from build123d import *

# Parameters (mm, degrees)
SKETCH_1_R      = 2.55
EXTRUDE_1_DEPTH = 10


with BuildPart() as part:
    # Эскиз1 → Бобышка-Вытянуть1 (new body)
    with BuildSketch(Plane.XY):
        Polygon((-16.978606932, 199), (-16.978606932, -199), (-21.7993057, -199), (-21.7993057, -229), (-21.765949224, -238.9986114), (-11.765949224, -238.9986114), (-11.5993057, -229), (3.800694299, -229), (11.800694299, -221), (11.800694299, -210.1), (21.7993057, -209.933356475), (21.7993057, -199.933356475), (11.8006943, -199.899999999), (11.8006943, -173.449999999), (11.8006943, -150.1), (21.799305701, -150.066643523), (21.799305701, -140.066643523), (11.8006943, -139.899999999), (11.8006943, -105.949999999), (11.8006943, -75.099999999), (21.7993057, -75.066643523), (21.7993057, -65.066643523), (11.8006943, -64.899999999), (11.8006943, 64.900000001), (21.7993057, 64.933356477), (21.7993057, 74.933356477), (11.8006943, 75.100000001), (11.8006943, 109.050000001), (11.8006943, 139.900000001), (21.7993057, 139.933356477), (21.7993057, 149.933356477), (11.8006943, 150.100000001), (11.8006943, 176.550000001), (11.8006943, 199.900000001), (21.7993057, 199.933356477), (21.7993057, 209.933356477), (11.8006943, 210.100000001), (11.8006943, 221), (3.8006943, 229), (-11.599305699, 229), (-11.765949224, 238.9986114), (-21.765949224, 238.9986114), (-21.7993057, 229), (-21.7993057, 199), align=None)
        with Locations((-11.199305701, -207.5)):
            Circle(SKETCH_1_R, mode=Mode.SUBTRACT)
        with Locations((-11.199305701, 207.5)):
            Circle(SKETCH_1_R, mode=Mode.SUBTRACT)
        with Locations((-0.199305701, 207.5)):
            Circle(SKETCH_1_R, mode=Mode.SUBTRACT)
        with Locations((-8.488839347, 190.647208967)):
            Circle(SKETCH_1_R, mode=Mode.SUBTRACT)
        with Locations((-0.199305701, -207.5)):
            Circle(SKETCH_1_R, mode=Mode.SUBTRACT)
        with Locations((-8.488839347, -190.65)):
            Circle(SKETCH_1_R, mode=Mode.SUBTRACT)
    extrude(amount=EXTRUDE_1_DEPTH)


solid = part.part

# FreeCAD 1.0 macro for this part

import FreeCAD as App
import Part
import Sketcher
Q = App.Units.Quantity

doc = App.newDocument("Part")
params = doc.addObject("Spreadsheet::Sheet", "Params")
for row, (alias, value) in enumerate([
    ("sketch1_diameter", "5.1 mm"),
    ("sketch1_width", "10 mm"),
    ("sketch1_height", "398 mm"),
    ("sketch1_height2", "30 mm"),
    ("sketch1_length", "10 mm"),
    ("pad1_length", "10 mm"),
], start=1):
    params.set(f"A{row}", alias)
    params.set(f"B{row}", "=" + value)
    params.setAlias(f"B{row}", alias)

body = doc.addObject("PartDesign::Body", "Body")

# Sketch on XY plane
sketch1 = body.newObject("Sketcher::SketchObject", "Sketch")
sketch1.AttachmentSupport = (doc.getObject("XY_Plane"), [""])
sketch1.MapMode = "FlatFace"
sketch1.addGeometry([
    Part.LineSegment(App.Vector(-17, 199, 0), App.Vector(-17, -199, 0)),  # 0
    Part.LineSegment(App.Vector(-17, -199, 0), App.Vector(-21.8, -199, 0)),  # 1
    Part.LineSegment(App.Vector(-21.8, -199, 0), App.Vector(-21.8, -229, 0)),  # 2
    Part.LineSegment(App.Vector(-21.8, -229, 0), App.Vector(-21.8, -239, 0)),  # 3
    Part.LineSegment(App.Vector(-21.8, -239, 0), App.Vector(-11.8, -239, 0)),  # 4
    Part.LineSegment(App.Vector(-11.8, -239, 0), App.Vector(-11.6, -229, 0)),  # 5
    Part.LineSegment(App.Vector(-11.6, -229, 0), App.Vector(3.8, -229, 0)),  # 6
    Part.LineSegment(App.Vector(3.8, -229, 0), App.Vector(11.8, -221, 0)),  # 7
    Part.LineSegment(App.Vector(11.8, -221, 0), App.Vector(11.8, -210.1, 0)),  # 8
    Part.LineSegment(App.Vector(11.8, -210.1, 0), App.Vector(21.8, -209.9, 0)),  # 9
    Part.LineSegment(App.Vector(21.8, -209.9, 0), App.Vector(21.8, -199.9, 0)),  # 10
    Part.LineSegment(App.Vector(21.8, -199.9, 0), App.Vector(11.8, -199.9, 0)),  # 11
    Part.LineSegment(App.Vector(11.8, -199.9, 0), App.Vector(11.8, -150.1, 0)),  # 12
    Part.LineSegment(App.Vector(11.8, -150.1, 0), App.Vector(21.8, -150.1, 0)),  # 13
    Part.LineSegment(App.Vector(21.8, -150.1, 0), App.Vector(21.8, -140.1, 0)),  # 14
    Part.LineSegment(App.Vector(21.8, -140.1, 0), App.Vector(11.8, -139.9, 0)),  # 15
    Part.LineSegment(App.Vector(11.8, -139.9, 0), App.Vector(11.8, -75.1, 0)),  # 16
    Part.LineSegment(App.Vector(11.8, -75.1, 0), App.Vector(21.8, -75.1, 0)),  # 17
    Part.LineSegment(App.Vector(21.8, -75.1, 0), App.Vector(21.8, -65.1, 0)),  # 18
    Part.LineSegment(App.Vector(21.8, -65.1, 0), App.Vector(11.8, -64.9, 0)),  # 19
    Part.LineSegment(App.Vector(11.8, -64.9, 0), App.Vector(11.8, 64.9, 0)),  # 20
    Part.LineSegment(App.Vector(11.8, 64.9, 0), App.Vector(21.8, 64.9, 0)),  # 21
    Part.LineSegment(App.Vector(21.8, 64.9, 0), App.Vector(21.8, 74.9, 0)),  # 22
    Part.LineSegment(App.Vector(21.8, 74.9, 0), App.Vector(11.8, 75.1, 0)),  # 23
    Part.LineSegment(App.Vector(11.8, 75.1, 0), App.Vector(11.8, 139.9, 0)),  # 24
    Part.LineSegment(App.Vector(11.8, 139.9, 0), App.Vector(21.8, 139.9, 0)),  # 25
    Part.LineSegment(App.Vector(21.8, 139.9, 0), App.Vector(21.8, 149.9, 0)),  # 26
    Part.LineSegment(App.Vector(21.8, 149.9, 0), App.Vector(11.8, 150.1, 0)),  # 27
    Part.LineSegment(App.Vector(11.8, 150.1, 0), App.Vector(11.8, 199.9, 0)),  # 28
    Part.LineSegment(App.Vector(11.8, 199.9, 0), App.Vector(21.8, 199.9, 0)),  # 29
    Part.LineSegment(App.Vector(21.8, 199.9, 0), App.Vector(21.8, 209.9, 0)),  # 30
    Part.LineSegment(App.Vector(21.8, 209.9, 0), App.Vector(11.8, 210.1, 0)),  # 31
    Part.LineSegment(App.Vector(11.8, 210.1, 0), App.Vector(11.8, 221, 0)),  # 32
    Part.LineSegment(App.Vector(11.8, 221, 0), App.Vector(3.8, 229, 0)),  # 33
    Part.LineSegment(App.Vector(3.8, 229, 0), App.Vector(-11.6, 229, 0)),  # 34
    Part.LineSegment(App.Vector(-11.6, 229, 0), App.Vector(-11.8, 239, 0)),  # 35
    Part.LineSegment(App.Vector(-11.8, 239, 0), App.Vector(-21.8, 239, 0)),  # 36
    Part.LineSegment(App.Vector(-21.8, 239, 0), App.Vector(-21.8, 229, 0)),  # 37
    Part.LineSegment(App.Vector(-21.8, 229, 0), App.Vector(-21.8, 199, 0)),  # 38
    Part.LineSegment(App.Vector(-21.8, 199, 0), App.Vector(-17, 199, 0)),  # 39
    Part.Circle(App.Vector(-11.2, -207.5, 0), App.Vector(0, 0, 1), 2.5),  # 40
    Part.Circle(App.Vector(-8.5, -190.7, 0), App.Vector(0, 0, 1), 2.5),  # 41
    Part.Circle(App.Vector(-0.2, -207.5, 0), App.Vector(0, 0, 1), 2.5),  # 42
    Part.Circle(App.Vector(-11.2, 207.5, 0), App.Vector(0, 0, 1), 2.5),  # 43
    Part.Circle(App.Vector(-8.5, 190.6, 0), App.Vector(0, 0, 1), 2.5),  # 44
    Part.Circle(App.Vector(-0.2, 207.5, 0), App.Vector(0, 0, 1), 2.5),  # 45
], False)
sketch1.addConstraint([
    Sketcher.Constraint("Coincident", 0, 2, 1, 1),
    Sketcher.Constraint("Coincident", 1, 2, 2, 1),
    Sketcher.Constraint("Coincident", 2, 2, 3, 1),
    Sketcher.Constraint("Coincident", 3, 2, 4, 1),
    Sketcher.Constraint("Coincident", 4, 2, 5, 1),
    Sketcher.Constraint("Coincident", 5, 2, 6, 1),
    Sketcher.Constraint("Coincident", 6, 2, 7, 1),
    Sketcher.Constraint("Coincident", 7, 2, 8, 1),
    Sketcher.Constraint("Coincident", 8, 2, 9, 1),
    Sketcher.Constraint("Coincident", 9, 2, 10, 1),
    Sketcher.Constraint("Coincident", 10, 2, 11, 1),
    Sketcher.Constraint("Coincident", 11, 2, 12, 1),
    Sketcher.Constraint("Coincident", 12, 2, 13, 1),
    Sketcher.Constraint("Coincident", 13, 2, 14, 1),
    Sketcher.Constraint("Coincident", 14, 2, 15, 1),
    Sketcher.Constraint("Coincident", 15, 2, 16, 1),
    Sketcher.Constraint("Coincident", 16, 2, 17, 1),
    Sketcher.Constraint("Coincident", 17, 2, 18, 1),
    Sketcher.Constraint("Coincident", 18, 2, 19, 1),
    Sketcher.Constraint("Coincident", 19, 2, 20, 1),
    Sketcher.Constraint("Coincident", 20, 2, 21, 1),
    Sketcher.Constraint("Coincident", 21, 2, 22, 1),
    Sketcher.Constraint("Coincident", 22, 2, 23, 1),
    Sketcher.Constraint("Coincident", 23, 2, 24, 1),
    Sketcher.Constraint("Coincident", 24, 2, 25, 1),
    Sketcher.Constraint("Coincident", 25, 2, 26, 1),
    Sketcher.Constraint("Coincident", 26, 2, 27, 1),
    Sketcher.Constraint("Coincident", 27, 2, 28, 1),
    Sketcher.Constraint("Coincident", 28, 2, 29, 1),
    Sketcher.Constraint("Coincident", 29, 2, 30, 1),
    Sketcher.Constraint("Coincident", 30, 2, 31, 1),
    Sketcher.Constraint("Coincident", 31, 2, 32, 1),
    Sketcher.Constraint("Coincident", 32, 2, 33, 1),
    Sketcher.Constraint("Coincident", 33, 2, 34, 1),
    Sketcher.Constraint("Coincident", 34, 2, 35, 1),
    Sketcher.Constraint("Coincident", 35, 2, 36, 1),
    Sketcher.Constraint("Coincident", 36, 2, 37, 1),
    Sketcher.Constraint("Coincident", 37, 2, 38, 1),
    Sketcher.Constraint("Coincident", 38, 2, 39, 1),
    Sketcher.Constraint("Coincident", 39, 2, 0, 1),
    Sketcher.Constraint("Vertical", 0),
    Sketcher.Constraint("Horizontal", 1),
    Sketcher.Constraint("Vertical", 2),
    Sketcher.Constraint("Horizontal", 4),
    Sketcher.Constraint("Horizontal", 6),
    Sketcher.Constraint("Vertical", 8),
    Sketcher.Constraint("Vertical", 10),
    Sketcher.Constraint("Vertical", 12),
    Sketcher.Constraint("Vertical", 14),
    Sketcher.Constraint("Vertical", 16),
    Sketcher.Constraint("Vertical", 18),
    Sketcher.Constraint("Vertical", 20),
    Sketcher.Constraint("Vertical", 22),
    Sketcher.Constraint("Vertical", 24),
    Sketcher.Constraint("Vertical", 26),
    Sketcher.Constraint("Vertical", 28),
    Sketcher.Constraint("Vertical", 30),
    Sketcher.Constraint("Vertical", 32),
    Sketcher.Constraint("Horizontal", 34),
    Sketcher.Constraint("Horizontal", 36),
    Sketcher.Constraint("Vertical", 38),
    Sketcher.Constraint("Horizontal", 39),
    Sketcher.Constraint("Equal", 40, 41),
    Sketcher.Constraint("Equal", 41, 42),
    Sketcher.Constraint("Equal", 42, 43),
    Sketcher.Constraint("Equal", 43, 44),
    Sketcher.Constraint("Equal", 44, 45),
    Sketcher.Constraint("Symmetric", 40, 3, 43, 3, -1),
    Sketcher.Constraint("Symmetric", 42, 3, 45, 3, -1),
    Sketcher.Constraint("Symmetric", 16, 2, 23, 2, -1),
    Sketcher.Constraint("Symmetric", 12, 2, 27, 2, -1),
    Sketcher.Constraint("Symmetric", 10, 2, 29, 2, -1),
    Sketcher.Constraint("Symmetric", 8, 2, 31, 2, -1),
    Sketcher.Constraint("Symmetric", 6, 2, 33, 2, -1),
    Sketcher.Constraint("Symmetric", 4, 2, 35, 2, -1),
    Sketcher.Constraint("Symmetric", 2, 2, 37, 2, -1),
    Sketcher.Constraint("Perpendicular", 3, 13),
    Sketcher.Constraint("Perpendicular", 5, 15),
    Sketcher.Constraint("Parallel", 13, 17),
    Sketcher.Constraint("Parallel", 15, 19),
    Sketcher.Constraint("Parallel", 17, 21),
    Sketcher.Constraint("Parallel", 19, 23),
    Sketcher.Constraint("Parallel", 21, 25),
    Sketcher.Constraint("Parallel", 23, 27),
    Sketcher.Constraint("Parallel", 25, 29),
    Sketcher.Constraint("Parallel", 27, 31),
    Sketcher.Constraint("Perpendicular", 7, 33),
    Sketcher.Constraint("Perpendicular", 9, 35),
    Sketcher.Constraint("Perpendicular", 11, 37),
    Sketcher.Constraint("Horizontal", 40, 3, 42, 3),
    Sketcher.Constraint("Horizontal", 2, 2, 5, 2),
    Sketcher.Constraint("Vertical", 41, 3, 44, 3),
    Sketcher.Constraint("Vertical", 8, 2, 11, 2),
    Sketcher.Constraint("Vertical", 10, 2, 13, 2),
    Sketcher.Constraint("Vertical", 12, 2, 15, 2),
    Sketcher.Constraint("Vertical", 14, 2, 17, 2),
    Sketcher.Constraint("Vertical", 16, 2, 19, 2),
    Sketcher.Constraint("Vertical", 18, 2, 21, 2),
    Sketcher.Constraint("Vertical", 22, 2, 25, 2),
    Sketcher.Constraint("Vertical", 5, 2, 34, 2),
    Sketcher.Constraint("Vertical", 3, 2, 36, 2),
    Sketcher.Constraint("Equal", 36, 10),
    Sketcher.Constraint("Equal", 10, 14),
    Sketcher.Constraint("Equal", 14, 18),
    Sketcher.Constraint("Equal", 18, 22),
    Sketcher.Constraint("Equal", 16, 24),
    Sketcher.Constraint("Equal", 8, 32),
    Sketcher.Constraint("Equal", 2, 38),
    Sketcher.Constraint("Equal", 5, 9),
    Sketcher.Constraint("Diameter", 40, Q("5.1 mm")),
    Sketcher.Constraint("DistanceX", 4, 1, 4, 2, Q("10 mm")),
    Sketcher.Constraint("DistanceY", 0, 2, 0, 1, Q("398 mm")),
    Sketcher.Constraint("DistanceY", 2, 2, 2, 1, Q("30 mm")),
    Sketcher.Constraint("Distance", 5, Q("10 mm")),
    Sketcher.Constraint("DistanceX", 6, 1, 6, 2, Q("15.4 mm")),
    Sketcher.Constraint("DistanceY", 8, 1, 8, 2, Q("10.9 mm")),
    Sketcher.Constraint("DistanceY", 12, 1, 12, 2, Q("49.8 mm")),
    Sketcher.Constraint("DistanceY", 16, 1, 16, 2, Q("64.8 mm")),
    Sketcher.Constraint("DistanceY", 20, 1, 20, 2, Q("129.8 mm")),
    Sketcher.Constraint("DistanceY", 7, 2, -1, 1, Q("221 mm")),
    Sketcher.Constraint("DistanceX", 40, 3, 42, 3, Q("11 mm")),
    Sketcher.Constraint("DistanceY", 40, 3, 43, 3, Q("415 mm")),
    Sketcher.Constraint("DistanceX", 42, 3, 6, 2, Q("4 mm")),
    Sketcher.Constraint("DistanceY", 41, 3, -1, 1, Q("190.65 mm")),
    Sketcher.Constraint("DistanceX", 1, 2, 1, 1, Q("4.820699 mm")),
    Sketcher.Constraint("DistanceX", 41, 3, -1, 1, Q("8.488839 mm")),
    Sketcher.Constraint("DistanceY", -1, 1, 44, 3, Q("190.647209 mm")),
    Sketcher.Constraint("DistanceX", 3, 2, -1, 1, Q("21.765949 mm")),
    Sketcher.Constraint("DistanceX", 40, 3, -1, 1, Q("11.199306 mm")),
])
sketch1.setExpression("Constraints[109]", "Params.sketch1_diameter")
sketch1.setExpression("Constraints[110]", "Params.sketch1_width")
sketch1.setExpression("Constraints[111]", "Params.sketch1_height")
sketch1.setExpression("Constraints[112]", "Params.sketch1_height2")
sketch1.setExpression("Constraints[113]", "Params.sketch1_length")
pad1 = body.newObject("PartDesign::Pad", "Pad")
pad1.Profile = sketch1
pad1.setExpression("Length", "Params.pad1_length")

doc.recompute()
